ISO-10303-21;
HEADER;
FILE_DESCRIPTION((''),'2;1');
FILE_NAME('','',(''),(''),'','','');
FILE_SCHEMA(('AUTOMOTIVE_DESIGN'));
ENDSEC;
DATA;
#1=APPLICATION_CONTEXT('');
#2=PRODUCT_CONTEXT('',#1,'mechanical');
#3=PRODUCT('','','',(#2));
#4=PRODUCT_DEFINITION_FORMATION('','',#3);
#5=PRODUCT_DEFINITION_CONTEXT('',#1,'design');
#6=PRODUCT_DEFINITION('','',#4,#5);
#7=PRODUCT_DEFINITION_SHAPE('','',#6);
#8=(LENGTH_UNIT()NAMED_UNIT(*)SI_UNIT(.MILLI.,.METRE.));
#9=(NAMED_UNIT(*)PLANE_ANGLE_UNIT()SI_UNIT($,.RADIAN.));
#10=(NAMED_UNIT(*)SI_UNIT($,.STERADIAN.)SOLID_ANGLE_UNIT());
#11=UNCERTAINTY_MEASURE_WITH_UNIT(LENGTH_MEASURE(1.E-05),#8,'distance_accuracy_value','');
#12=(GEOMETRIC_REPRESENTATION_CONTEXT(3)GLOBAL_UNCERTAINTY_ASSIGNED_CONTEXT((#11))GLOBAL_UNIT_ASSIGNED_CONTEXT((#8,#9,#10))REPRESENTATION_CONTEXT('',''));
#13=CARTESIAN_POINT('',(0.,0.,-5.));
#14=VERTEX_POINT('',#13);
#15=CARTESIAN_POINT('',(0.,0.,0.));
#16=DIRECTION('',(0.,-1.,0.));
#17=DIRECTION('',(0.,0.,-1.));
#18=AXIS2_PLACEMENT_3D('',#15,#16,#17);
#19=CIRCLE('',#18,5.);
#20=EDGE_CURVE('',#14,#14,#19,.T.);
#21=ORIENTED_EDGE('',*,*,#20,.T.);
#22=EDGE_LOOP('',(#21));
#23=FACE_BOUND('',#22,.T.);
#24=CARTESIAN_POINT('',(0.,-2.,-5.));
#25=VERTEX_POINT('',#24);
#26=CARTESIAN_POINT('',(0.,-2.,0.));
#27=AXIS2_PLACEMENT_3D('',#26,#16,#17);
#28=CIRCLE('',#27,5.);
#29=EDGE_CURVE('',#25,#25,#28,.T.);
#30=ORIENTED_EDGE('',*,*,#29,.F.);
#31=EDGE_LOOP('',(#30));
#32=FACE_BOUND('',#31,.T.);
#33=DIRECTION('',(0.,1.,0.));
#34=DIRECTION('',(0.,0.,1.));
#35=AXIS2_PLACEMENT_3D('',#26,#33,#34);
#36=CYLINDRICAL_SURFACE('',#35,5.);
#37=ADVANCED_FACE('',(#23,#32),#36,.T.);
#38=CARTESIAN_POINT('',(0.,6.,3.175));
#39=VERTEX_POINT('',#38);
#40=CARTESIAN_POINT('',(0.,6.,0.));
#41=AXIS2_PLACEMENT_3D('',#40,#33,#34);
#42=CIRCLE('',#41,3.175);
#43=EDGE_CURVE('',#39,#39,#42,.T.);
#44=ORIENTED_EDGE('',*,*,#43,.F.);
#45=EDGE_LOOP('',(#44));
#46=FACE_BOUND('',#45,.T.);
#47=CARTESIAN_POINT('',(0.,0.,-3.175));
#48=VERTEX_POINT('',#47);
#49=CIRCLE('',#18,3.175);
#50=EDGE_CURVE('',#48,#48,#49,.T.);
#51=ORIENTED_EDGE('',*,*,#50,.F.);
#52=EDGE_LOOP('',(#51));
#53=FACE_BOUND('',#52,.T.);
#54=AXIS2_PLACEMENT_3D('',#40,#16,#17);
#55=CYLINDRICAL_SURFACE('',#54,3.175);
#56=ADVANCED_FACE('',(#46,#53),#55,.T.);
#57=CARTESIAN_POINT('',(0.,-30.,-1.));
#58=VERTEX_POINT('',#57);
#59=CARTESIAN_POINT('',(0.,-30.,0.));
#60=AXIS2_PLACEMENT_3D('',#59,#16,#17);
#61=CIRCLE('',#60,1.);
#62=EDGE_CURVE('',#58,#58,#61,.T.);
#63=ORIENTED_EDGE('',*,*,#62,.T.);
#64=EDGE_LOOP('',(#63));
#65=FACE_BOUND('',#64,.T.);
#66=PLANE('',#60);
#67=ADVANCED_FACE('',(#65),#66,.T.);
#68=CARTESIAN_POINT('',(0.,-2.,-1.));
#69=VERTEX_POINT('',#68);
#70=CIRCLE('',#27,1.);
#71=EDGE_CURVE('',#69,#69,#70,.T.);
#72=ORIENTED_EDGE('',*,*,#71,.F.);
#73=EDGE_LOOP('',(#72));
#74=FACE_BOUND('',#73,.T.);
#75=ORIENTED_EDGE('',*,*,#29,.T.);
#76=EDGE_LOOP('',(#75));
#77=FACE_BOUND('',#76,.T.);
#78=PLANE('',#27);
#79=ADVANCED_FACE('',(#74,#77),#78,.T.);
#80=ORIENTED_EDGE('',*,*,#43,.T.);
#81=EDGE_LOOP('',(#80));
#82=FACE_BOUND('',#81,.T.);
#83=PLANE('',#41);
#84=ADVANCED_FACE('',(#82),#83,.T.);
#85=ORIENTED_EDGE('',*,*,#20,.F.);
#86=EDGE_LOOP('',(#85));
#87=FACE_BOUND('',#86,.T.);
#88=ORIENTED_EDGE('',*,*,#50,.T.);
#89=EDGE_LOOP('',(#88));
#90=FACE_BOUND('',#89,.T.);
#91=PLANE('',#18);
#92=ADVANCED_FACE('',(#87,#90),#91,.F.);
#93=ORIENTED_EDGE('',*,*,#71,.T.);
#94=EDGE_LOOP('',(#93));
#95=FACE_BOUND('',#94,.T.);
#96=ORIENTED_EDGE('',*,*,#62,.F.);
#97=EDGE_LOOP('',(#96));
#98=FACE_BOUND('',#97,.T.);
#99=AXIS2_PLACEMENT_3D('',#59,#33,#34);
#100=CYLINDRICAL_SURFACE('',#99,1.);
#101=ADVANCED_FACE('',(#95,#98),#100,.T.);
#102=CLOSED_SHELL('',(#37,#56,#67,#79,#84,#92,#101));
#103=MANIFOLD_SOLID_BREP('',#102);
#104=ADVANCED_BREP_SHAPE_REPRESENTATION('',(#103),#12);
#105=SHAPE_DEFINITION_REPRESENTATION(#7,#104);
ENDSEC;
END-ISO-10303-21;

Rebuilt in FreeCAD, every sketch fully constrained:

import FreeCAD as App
import Part
import Sketcher
from FreeCAD import Vector
Q = App.Units.Quantity

doc = App.newDocument("Part")
params = doc.addObject("Spreadsheet::Sheet", "Params")
for row, (alias, value) in enumerate([
    ("sketch1_diameter", "6.35 mm"),
    ("pad1_length", "6 mm"),
    ("sketch2_diameter", "2 mm"),
    ("pad2_length", "30 mm"),
    ("sketch3_diameter", "10 mm"),
    ("pad3_length", "2 mm"),
], start=1):
    params.set(f"A{row}", alias)
    params.set(f"B{row}", "=" + value)
    params.setAlias(f"B{row}", alias)

body = doc.addObject("PartDesign::Body", "Body")

sketch1 = doc.addObject("Sketcher::SketchObject", "Sketch")
body.addObject(sketch1)
sketch1.AttachmentSupport = (doc.XZ_Plane, [""])
sketch1.MapMode = "FlatFace"
sketch1.addGeometry(Part.Circle(Vector(0, 0, 0), Vector(0, 0, 1), 3.2), False)
sketch1.addConstraint([
    Sketcher.Constraint("Coincident", 0, 3, -1, 1),
    Sketcher.Constraint("Diameter", 0, Q("6.35 mm")),
])
sketch1.setExpression("Constraints[1]", "Params.sketch1_diameter")
pad1 = doc.addObject("PartDesign::Pad", "Pad")
body.addObject(pad1)
pad1.Profile = sketch1
pad1.setExpression("Length", "Params.pad1_length")
pad1.Reversed = True

sketch2 = doc.addObject("Sketcher::SketchObject", "Sketch001")
body.addObject(sketch2)
sketch2.AttachmentSupport = (doc.XZ_Plane, [""])
sketch2.MapMode = "FlatFace"
sketch2.addGeometry(Part.Circle(Vector(0, 0, 0), Vector(0, 0, 1), 1), False)
sketch2.addConstraint([
    Sketcher.Constraint("Coincident", 0, 3, -1, 1),
    Sketcher.Constraint("Diameter", 0, Q("2 mm")),
])
sketch2.setExpression("Constraints[1]", "Params.sketch2_diameter")
pad2 = doc.addObject("PartDesign::Pad", "Pad001")
body.addObject(pad2)
pad2.Profile = sketch2
pad2.setExpression("Length", "Params.pad2_length")

sketch3 = doc.addObject("Sketcher::SketchObject", "Sketch002")
body.addObject(sketch3)
sketch3.AttachmentSupport = (doc.XZ_Plane, [""])
sketch3.MapMode = "FlatFace"
sketch3.addGeometry(Part.Circle(Vector(0, 0, 0), Vector(0, 0, 1), 5), False)
sketch3.addConstraint([
    Sketcher.Constraint("Coincident", 0, 3, -1, 1),
    Sketcher.Constraint("Diameter", 0, Q("10 mm")),
])
sketch3.setExpression("Constraints[1]", "Params.sketch3_diameter")
pad3 = doc.addObject("PartDesign::Pad", "Pad002")
body.addObject(pad3)
pad3.Profile = sketch3
pad3.setExpression("Length", "Params.pad3_length")

doc.recompute()
